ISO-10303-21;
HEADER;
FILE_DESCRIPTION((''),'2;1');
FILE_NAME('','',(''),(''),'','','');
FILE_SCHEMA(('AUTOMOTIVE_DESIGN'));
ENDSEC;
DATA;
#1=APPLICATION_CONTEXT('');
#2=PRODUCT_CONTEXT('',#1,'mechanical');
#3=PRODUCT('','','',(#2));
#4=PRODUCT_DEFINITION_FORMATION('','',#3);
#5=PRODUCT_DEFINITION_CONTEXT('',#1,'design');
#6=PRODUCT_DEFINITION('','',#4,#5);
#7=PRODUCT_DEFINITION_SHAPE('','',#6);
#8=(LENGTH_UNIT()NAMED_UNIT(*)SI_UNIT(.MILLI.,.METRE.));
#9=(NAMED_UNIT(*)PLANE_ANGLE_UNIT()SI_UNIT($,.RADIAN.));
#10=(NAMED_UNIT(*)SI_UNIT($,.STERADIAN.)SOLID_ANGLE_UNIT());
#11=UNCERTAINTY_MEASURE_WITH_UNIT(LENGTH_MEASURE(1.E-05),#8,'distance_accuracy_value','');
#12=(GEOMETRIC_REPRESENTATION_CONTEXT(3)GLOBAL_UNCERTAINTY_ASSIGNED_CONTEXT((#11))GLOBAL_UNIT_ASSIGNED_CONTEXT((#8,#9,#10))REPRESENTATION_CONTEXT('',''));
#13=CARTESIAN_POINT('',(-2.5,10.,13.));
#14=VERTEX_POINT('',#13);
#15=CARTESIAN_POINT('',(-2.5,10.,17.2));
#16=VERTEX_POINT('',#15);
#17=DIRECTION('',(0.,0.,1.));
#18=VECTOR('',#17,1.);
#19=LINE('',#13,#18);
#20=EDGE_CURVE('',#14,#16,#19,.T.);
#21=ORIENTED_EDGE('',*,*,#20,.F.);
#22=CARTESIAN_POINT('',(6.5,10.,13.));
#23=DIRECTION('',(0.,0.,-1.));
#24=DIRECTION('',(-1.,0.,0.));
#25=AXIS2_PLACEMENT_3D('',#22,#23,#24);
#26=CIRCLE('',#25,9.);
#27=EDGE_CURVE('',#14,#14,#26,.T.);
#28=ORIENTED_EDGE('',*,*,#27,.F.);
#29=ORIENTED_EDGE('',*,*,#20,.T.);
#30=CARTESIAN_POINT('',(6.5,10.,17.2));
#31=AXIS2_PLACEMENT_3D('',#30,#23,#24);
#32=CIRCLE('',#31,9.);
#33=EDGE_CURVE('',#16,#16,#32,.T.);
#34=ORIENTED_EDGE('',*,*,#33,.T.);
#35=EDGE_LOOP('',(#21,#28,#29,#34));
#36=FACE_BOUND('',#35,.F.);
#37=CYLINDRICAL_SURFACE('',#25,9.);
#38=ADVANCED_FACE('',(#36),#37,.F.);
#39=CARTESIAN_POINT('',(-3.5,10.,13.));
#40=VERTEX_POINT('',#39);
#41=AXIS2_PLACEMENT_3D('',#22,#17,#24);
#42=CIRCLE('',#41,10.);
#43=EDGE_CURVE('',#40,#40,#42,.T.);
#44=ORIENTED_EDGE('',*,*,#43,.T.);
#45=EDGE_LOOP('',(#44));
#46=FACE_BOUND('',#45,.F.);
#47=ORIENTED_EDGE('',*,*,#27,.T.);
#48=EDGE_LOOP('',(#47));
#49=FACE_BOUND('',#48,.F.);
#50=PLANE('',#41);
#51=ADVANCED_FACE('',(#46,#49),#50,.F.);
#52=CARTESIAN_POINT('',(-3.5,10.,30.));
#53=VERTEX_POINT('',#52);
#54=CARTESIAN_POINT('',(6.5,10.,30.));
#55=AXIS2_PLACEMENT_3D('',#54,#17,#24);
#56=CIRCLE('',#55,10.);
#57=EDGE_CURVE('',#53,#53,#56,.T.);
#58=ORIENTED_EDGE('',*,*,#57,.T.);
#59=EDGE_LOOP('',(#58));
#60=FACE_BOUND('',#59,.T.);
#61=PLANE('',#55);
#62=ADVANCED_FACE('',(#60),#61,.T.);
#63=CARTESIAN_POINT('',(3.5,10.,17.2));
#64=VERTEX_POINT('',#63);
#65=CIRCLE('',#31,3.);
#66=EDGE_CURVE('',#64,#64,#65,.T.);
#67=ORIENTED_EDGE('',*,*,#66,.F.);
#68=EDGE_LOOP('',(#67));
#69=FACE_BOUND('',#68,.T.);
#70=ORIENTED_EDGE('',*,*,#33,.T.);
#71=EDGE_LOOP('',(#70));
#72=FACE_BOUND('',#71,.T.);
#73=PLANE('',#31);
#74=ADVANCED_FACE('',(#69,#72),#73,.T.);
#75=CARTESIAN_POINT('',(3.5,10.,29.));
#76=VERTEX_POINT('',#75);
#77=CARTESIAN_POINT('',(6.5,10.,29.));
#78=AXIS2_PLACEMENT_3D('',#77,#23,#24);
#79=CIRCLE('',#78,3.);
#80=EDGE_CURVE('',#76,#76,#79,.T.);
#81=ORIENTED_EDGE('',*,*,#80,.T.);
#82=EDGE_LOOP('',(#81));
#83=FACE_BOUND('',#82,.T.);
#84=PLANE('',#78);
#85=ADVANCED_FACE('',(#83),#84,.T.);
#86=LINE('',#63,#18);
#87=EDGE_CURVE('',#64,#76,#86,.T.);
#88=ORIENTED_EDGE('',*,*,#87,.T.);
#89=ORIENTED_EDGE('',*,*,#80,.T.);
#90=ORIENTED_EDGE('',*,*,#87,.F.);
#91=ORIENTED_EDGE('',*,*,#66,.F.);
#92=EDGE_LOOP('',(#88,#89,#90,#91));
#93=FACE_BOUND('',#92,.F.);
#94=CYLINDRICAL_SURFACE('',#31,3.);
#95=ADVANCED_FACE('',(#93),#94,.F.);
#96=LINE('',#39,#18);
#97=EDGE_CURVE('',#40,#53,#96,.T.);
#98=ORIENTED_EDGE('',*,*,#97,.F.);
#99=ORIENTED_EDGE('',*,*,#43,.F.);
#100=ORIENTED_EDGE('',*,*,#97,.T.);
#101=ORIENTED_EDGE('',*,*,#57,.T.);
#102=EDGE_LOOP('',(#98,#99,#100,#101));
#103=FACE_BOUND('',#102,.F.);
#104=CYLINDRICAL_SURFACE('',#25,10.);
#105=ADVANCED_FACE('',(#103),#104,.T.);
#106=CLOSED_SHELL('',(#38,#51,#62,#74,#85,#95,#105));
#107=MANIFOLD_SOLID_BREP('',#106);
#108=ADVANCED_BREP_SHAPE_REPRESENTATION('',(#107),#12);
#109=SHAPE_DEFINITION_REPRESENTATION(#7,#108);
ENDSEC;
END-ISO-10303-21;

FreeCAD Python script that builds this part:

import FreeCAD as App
import Part
import Sketcher

V = App.Vector

doc = App.newDocument("Part")
body = doc.addObject("PartDesign::Body", "Body")

# Sketch on XY plane
sketch1 = body.newObject("Sketcher::SketchObject", "Sketch")
sketch1.AttachmentSupport = (doc.getObject("XY_Plane"), [""])
sketch1.MapMode = "FlatFace"
sketch1.addGeometry(Part.Circle(V(0, 0, 0), V(0, 0, 1), 10), False)
sketch1.addConstraint(Sketcher.Constraint("Coincident", 0, 3, -1, 1))
sketch1.addConstraint(Sketcher.Constraint("Diameter", 0, 20.0))
pad1 = body.newObject("PartDesign::Pad", "Pad")
pad1.Profile = sketch1
pad1.Length = 17

# Sketch on XY plane
sketch2 = body.newObject("Sketcher::SketchObject", "Sketch001")
sketch2.AttachmentSupport = (doc.getObject("XY_Plane"), [""])
sketch2.MapMode = "FlatFace"
sketch2.addGeometry(Part.Circle(V(0, 0, 0), V(0, 0, 1), 9), False)
sketch2.addConstraint(Sketcher.Constraint("Coincident", 0, 3, -1, 1))
sketch2.addConstraint(Sketcher.Constraint("Diameter", 0, 18.0))
pocket1 = body.newObject("PartDesign::Pocket", "Pocket")
pocket1.Profile = sketch2
pocket1.Length = 4.2
pocket1.Reversed = True

# Sketch on XY plane
sketch3 = body.newObject("Sketcher::SketchObject", "Sketch002")
sketch3.AttachmentSupport = (doc.getObject("XY_Plane"), [""])
sketch3.MapMode = "FlatFace"
sketch3.AttachmentOffset = App.Placement(V(0, 0, 4.2), App.Rotation())
sketch3.addGeometry(Part.Circle(V(0, 0, 0), V(0, 0, 1), 3), False)
sketch3.addConstraint(Sketcher.Constraint("Coincident", 0, 3, -1, 1))
sketch3.addConstraint(Sketcher.Constraint("Diameter", 0, 6.0))
pocket2 = body.newObject("PartDesign::Pocket", "Pocket001")
pocket2.Profile = sketch3
pocket2.Length = 11.8
pocket2.Reversed = True
body2 = doc.addObject("PartDesign::Body", "Body001")
doc.recompute()

body.Placement = App.Placement(V(6.5, 10, 13), App.Rotation(V(0, 0, 1), 180))
boolean = body2.newObject("PartDesign::Boolean", "Boolean")
boolean.Type = "Fuse"
boolean.addObjects([body])

doc.recompute()
